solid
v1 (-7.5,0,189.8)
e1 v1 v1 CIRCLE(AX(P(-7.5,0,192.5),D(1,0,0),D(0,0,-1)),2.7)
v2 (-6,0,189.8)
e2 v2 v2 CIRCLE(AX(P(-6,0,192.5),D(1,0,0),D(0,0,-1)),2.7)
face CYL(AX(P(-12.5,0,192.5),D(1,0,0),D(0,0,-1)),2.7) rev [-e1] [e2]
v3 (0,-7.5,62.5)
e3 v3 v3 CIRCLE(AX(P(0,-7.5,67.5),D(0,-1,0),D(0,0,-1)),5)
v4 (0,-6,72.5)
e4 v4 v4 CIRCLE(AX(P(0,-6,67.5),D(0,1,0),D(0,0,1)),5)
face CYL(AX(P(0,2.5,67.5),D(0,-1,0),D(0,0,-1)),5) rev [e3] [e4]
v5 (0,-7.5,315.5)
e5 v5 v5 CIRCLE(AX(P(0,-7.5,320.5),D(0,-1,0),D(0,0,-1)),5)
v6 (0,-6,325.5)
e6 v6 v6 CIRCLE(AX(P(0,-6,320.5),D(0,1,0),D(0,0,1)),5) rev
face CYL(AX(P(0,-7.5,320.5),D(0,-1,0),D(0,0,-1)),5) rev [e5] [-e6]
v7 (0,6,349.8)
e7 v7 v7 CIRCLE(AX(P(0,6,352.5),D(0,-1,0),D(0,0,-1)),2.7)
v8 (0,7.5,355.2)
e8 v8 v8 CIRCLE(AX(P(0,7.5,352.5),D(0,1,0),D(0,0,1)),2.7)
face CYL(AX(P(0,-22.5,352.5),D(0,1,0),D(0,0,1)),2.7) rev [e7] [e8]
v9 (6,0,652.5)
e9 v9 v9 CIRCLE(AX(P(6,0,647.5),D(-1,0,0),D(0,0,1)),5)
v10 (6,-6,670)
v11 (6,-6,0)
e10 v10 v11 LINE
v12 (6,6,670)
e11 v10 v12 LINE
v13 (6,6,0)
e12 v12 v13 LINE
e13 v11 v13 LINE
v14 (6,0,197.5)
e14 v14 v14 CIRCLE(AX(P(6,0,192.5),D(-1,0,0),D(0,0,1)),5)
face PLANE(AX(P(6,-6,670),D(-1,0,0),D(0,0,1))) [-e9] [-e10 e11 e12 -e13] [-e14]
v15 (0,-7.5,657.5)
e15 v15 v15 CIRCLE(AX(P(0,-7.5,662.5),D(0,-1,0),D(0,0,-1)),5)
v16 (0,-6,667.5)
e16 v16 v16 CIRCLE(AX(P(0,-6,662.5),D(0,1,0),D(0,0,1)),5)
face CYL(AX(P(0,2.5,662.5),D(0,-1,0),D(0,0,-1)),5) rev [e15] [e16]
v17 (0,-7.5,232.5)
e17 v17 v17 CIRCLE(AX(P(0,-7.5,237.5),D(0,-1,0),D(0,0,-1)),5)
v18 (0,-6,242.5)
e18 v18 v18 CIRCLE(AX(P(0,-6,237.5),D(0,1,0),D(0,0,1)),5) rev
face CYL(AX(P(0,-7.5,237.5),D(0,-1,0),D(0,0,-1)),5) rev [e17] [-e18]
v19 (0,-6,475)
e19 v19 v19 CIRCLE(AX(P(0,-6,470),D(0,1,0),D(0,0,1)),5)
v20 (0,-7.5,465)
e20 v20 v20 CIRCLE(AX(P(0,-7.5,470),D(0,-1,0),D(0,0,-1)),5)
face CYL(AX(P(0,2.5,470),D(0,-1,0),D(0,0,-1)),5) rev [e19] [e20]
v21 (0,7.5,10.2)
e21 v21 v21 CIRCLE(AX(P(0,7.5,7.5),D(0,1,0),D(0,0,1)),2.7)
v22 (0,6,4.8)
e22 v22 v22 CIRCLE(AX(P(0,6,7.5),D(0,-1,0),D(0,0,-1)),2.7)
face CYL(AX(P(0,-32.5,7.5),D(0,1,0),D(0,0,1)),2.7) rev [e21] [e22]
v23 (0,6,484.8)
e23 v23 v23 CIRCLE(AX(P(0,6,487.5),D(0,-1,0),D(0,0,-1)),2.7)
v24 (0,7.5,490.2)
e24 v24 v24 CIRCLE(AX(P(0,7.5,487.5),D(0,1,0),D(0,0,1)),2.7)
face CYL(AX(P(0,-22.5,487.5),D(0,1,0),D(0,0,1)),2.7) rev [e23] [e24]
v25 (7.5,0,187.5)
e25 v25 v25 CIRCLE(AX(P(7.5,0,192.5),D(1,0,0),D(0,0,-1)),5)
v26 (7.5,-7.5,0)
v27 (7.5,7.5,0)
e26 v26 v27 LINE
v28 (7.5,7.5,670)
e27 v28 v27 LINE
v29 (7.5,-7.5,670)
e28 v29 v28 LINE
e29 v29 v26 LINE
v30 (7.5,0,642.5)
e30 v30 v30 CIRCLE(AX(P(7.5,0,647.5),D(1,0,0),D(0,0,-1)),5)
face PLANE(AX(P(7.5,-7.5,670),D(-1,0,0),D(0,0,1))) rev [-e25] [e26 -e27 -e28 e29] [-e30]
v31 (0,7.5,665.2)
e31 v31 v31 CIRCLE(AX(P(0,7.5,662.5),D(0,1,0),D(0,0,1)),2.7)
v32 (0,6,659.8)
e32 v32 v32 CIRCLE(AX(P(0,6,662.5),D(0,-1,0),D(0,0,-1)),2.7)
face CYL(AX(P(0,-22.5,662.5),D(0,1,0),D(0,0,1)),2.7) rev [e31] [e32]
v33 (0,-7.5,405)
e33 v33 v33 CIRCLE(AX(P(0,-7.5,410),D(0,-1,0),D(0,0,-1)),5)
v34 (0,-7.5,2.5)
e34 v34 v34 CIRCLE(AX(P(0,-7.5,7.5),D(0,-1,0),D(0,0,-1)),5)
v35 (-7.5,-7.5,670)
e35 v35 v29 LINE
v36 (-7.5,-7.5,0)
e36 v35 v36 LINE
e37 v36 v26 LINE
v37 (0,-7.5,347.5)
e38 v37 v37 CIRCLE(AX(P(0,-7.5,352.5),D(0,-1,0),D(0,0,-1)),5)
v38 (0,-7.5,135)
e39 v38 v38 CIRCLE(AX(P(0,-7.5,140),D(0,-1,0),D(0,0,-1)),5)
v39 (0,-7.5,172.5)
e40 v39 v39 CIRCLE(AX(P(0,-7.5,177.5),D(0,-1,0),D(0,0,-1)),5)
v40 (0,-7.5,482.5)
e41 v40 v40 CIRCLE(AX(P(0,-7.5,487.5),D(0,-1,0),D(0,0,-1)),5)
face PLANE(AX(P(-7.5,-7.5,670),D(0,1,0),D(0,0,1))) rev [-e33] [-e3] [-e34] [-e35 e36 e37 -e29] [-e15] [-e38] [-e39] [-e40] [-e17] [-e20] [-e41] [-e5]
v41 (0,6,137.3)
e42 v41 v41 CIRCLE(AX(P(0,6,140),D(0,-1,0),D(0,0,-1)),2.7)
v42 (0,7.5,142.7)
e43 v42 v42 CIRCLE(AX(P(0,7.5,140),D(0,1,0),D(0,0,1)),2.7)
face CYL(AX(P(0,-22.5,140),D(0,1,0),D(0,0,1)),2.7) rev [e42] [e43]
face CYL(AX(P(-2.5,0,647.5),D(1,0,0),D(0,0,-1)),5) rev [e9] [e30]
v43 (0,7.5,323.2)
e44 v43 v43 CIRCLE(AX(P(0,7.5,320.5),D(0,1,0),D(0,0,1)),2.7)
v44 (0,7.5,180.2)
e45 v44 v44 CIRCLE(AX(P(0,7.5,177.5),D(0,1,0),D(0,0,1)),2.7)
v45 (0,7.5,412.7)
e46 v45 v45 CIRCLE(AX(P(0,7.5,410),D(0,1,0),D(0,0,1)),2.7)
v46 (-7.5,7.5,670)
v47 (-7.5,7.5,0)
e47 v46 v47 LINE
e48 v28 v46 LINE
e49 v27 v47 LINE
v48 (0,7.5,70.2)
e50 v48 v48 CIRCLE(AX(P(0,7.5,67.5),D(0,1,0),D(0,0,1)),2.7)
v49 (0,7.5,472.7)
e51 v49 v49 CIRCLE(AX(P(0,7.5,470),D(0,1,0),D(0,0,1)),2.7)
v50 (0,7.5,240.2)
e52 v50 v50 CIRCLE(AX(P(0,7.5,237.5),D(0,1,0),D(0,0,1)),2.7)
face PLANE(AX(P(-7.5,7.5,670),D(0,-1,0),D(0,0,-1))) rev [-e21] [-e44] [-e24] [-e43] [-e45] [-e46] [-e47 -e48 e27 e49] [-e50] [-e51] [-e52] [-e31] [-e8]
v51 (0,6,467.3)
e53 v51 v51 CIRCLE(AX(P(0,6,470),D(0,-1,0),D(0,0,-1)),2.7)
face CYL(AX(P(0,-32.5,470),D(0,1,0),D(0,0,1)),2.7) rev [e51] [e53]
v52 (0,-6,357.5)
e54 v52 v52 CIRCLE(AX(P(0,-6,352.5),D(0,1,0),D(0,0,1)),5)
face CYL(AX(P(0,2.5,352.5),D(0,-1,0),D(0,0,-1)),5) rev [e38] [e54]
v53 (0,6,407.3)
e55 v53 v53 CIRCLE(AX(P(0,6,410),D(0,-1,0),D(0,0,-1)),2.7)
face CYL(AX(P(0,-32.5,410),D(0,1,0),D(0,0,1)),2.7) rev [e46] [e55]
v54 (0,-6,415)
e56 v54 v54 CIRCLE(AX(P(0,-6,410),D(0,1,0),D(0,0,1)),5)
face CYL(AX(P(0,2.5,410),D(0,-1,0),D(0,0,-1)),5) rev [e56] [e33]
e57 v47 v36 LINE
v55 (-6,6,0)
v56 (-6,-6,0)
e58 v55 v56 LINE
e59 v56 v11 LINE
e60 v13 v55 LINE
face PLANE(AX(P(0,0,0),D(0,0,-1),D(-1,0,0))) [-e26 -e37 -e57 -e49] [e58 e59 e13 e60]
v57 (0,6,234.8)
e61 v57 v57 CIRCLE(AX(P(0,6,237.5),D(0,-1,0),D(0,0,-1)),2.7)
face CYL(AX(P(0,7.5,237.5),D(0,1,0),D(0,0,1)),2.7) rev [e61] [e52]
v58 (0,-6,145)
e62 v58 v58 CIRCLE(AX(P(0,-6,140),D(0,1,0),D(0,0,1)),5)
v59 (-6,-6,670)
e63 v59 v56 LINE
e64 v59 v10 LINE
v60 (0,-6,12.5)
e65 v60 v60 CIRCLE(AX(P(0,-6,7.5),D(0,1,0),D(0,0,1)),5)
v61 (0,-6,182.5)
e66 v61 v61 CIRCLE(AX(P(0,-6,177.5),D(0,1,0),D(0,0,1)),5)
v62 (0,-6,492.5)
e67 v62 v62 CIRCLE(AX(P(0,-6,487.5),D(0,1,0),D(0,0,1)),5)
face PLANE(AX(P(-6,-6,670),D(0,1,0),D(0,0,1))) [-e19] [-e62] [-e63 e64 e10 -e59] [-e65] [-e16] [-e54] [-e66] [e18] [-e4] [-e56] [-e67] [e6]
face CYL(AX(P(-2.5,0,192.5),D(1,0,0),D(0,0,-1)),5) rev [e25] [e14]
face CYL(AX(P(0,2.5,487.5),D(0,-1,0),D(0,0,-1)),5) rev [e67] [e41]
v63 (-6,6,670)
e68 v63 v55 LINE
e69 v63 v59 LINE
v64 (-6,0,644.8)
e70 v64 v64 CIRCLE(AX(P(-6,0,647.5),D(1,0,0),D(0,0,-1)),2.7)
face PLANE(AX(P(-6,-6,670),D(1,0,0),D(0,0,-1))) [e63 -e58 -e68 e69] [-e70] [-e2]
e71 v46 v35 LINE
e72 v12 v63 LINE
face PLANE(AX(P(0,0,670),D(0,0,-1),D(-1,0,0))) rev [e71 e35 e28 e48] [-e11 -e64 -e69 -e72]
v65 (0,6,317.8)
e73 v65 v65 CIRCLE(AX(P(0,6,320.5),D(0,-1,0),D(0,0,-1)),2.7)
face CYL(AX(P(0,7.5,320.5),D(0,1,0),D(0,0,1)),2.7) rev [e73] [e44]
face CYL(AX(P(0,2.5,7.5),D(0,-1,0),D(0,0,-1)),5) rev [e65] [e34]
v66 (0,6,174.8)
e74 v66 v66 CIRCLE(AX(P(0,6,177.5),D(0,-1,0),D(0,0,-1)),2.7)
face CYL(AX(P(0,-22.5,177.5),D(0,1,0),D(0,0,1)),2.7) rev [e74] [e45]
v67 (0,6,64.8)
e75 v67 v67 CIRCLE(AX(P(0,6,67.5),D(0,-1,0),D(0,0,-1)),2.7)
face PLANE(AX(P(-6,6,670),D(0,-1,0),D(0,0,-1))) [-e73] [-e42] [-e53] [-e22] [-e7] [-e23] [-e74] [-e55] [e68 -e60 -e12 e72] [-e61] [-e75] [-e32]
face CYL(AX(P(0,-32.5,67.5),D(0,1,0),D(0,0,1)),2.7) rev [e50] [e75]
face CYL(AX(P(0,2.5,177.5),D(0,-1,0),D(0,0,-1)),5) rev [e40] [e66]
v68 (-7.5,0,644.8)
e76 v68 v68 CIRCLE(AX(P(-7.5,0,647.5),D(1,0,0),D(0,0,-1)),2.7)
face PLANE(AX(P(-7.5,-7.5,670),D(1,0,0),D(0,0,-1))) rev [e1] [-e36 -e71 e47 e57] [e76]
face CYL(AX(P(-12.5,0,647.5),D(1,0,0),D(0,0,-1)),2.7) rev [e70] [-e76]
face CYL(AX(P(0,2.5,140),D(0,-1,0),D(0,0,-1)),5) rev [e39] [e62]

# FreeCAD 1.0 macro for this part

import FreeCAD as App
import Part
import Sketcher
from FreeCAD import Vector


def add_polygon(sketch, points):
    """Adds a closed chain of lines whose ends are joined by coincident constraints."""
    first, n = sketch.GeometryCount, len(points)
    for a, b in zip(points, points[1:] + points[:1]):
        sketch.addGeometry(Part.LineSegment(App.Vector(*a, 0), App.Vector(*b, 0)), False)
    for i in range(n):
        sketch.addConstraint(Sketcher.Constraint("Coincident", first + i, 2, first + (i + 1) % n, 1))

doc = App.newDocument("Part")
params = doc.addObject("Spreadsheet::Sheet", "Params")
for row, (alias, value) in enumerate([
    ("sketch1_width", "15 mm"),
    ("sketch1_width2", "12 mm"),
    ("pad1_length", "670 mm"),
    ("sketch2_diameter", "5.4 mm"),
    ("pocket1_length", "20 mm"),
    ("sketch3_diameter", "5.4 mm"),
    ("pocket2_length", "30 mm"),
    ("sketch4_diameter", "5.4 mm"),
    ("pocket3_length", "40 mm"),
    ("sketch5_diameter", "10 mm"),
    ("pocket4_length", "10 mm"),
    ("sketch6_diameter", "10 mm"),
    ("pocket5_length", "10 mm"),
    ("sketch7_diameter", "5.4 mm"),
    ("hole_diameter", "5.4 mm"),
    ("sketch8_diameter", "10 mm"),
    ("hole2_diameter", "10 mm"),
    ("hole2_depth", "1.5 mm"),
], start=1):
    params.set(f"A{row}", alias)
    params.set(f"B{row}", "=" + value)
    params.setAlias(f"B{row}", alias)

body = doc.addObject("PartDesign::Body", "Body")

# Sketch on XY plane
sketch1 = body.newObject("Sketcher::SketchObject", "Sketch")
sketch1.AttachmentSupport = (doc.getObject("XY_Plane"), [""])
sketch1.MapMode = "FlatFace"
add_polygon(sketch1, [(-7.5, 7.5), (-7.5, -7.5), (7.5, -7.5), (7.5, 7.5)])  # lines 0-3
add_polygon(sketch1, [(6, -6), (-6, -6), (-6, 6), (6, 6)])  # lines 4-7
sketch1.addConstraint([
    Sketcher.Constraint("Vertical", 0),
    Sketcher.Constraint("Horizontal", 1),
    Sketcher.Constraint("Vertical", 2),
    Sketcher.Constraint("Horizontal", 3),
    Sketcher.Constraint("Horizontal", 4),
    Sketcher.Constraint("Vertical", 5),
    Sketcher.Constraint("Horizontal", 6),
    Sketcher.Constraint("Vertical", 7),
    Sketcher.Constraint("Symmetric", 0, 2, 2, 2, -1, 1),
    Sketcher.Constraint("Symmetric", 4, 2, 6, 2, -1, 1),
    Sketcher.Constraint("Equal", 3, 0),
    Sketcher.Constraint("Equal", 6, 5),
    Sketcher.Constraint("DistanceX", 1, 1, 1, 2, 15.0),
    Sketcher.Constraint("DistanceX", 4, 2, 4, 1, 12.0),
])
sketch1.setExpression("Constraints[20]", "Params.sketch1_width")
sketch1.setExpression("Constraints[21]", "Params.sketch1_width2")
pad1 = body.newObject("PartDesign::Pad", "Pad")
pad1.Profile = sketch1
pad1.setExpression("Length", "Params.pad1_length")

# Sketch on YZ plane
sketch2 = body.newObject("Sketcher::SketchObject", "Sketch001")
sketch2.AttachmentSupport = (doc.getObject("YZ_Plane"), [""])
sketch2.MapMode = "FlatFace"
sketch2.AttachmentOffset = App.Placement(Vector(0, 0, 7.5), App.Rotation())
sketch2.addGeometry([
    Part.Circle(Vector(0, 647.5, 0), Vector(0, 0, 1), 2.7),
    Part.Circle(Vector(0, 192.5, 0), Vector(0, 0, 1), 2.7),
], False)
sketch2.addConstraint([
    Sketcher.Constraint("Equal", 0, 1),
    Sketcher.Constraint("PointOnObject", 0, 3, -2),
    Sketcher.Constraint("PointOnObject", 1, 3, -2),
    Sketcher.Constraint("Diameter", 0, 5.4),
    Sketcher.Constraint("DistanceY", 1, 3, 0, 3, 455.0),
    Sketcher.Constraint("DistanceY", -1, 1, 0, 3, 647.5),
])
sketch2.setExpression("Constraints[3]", "Params.sketch2_diameter")
pocket1 = body.newObject("PartDesign::Pocket", "Pocket")
pocket1.Profile = sketch2
pocket1.setExpression("Length", "Params.pocket1_length")

# Sketch on XZ plane
sketch3 = body.newObject("Sketcher::SketchObject", "Sketch002")
sketch3.AttachmentSupport = (doc.getObject("XZ_Plane"), [""])
sketch3.MapMode = "FlatFace"
sketch3.AttachmentOffset = App.Placement(Vector(0, 0, -7.5), App.Rotation())
sketch3.addGeometry([
    Part.Circle(Vector(0, 177.5, 0), Vector(0, 0, 1), 2.7),  # 0
    Part.Circle(Vector(0, 487.5, 0), Vector(0, 0, 1), 2.7),  # 1
    Part.Circle(Vector(0, 352.5, 0), Vector(0, 0, 1), 2.7),  # 2
    Part.Circle(Vector(0, 662.5, 0), Vector(0, 0, 1), 2.7),  # 3
    Part.Circle(Vector(0, 140, 0), Vector(0, 0, 1), 2.7),  # 4
], False)
sketch3.addConstraint([
    Sketcher.Constraint("Equal", 0, 1),
    Sketcher.Constraint("Equal", 1, 2),
    Sketcher.Constraint("Equal", 2, 3),
    Sketcher.Constraint("Equal", 3, 4),
    Sketcher.Constraint("PointOnObject", 0, 3, -2),
    Sketcher.Constraint("PointOnObject", 1, 3, -2),
    Sketcher.Constraint("PointOnObject", 2, 3, -2),
    Sketcher.Constraint("PointOnObject", 3, 3, -2),
    Sketcher.Constraint("PointOnObject", 4, 3, -2),
    Sketcher.Constraint("Diameter", 0, 5.4),
    Sketcher.Constraint("DistanceY", -1, 1, 4, 3, 140.0),
    Sketcher.Constraint("DistanceY", 0, 3, 1, 3, 310.0),
    Sketcher.Constraint("DistanceY", 2, 3, 1, 3, 135.0),
    Sketcher.Constraint("DistanceY", 1, 3, 3, 3, 175.0),
    Sketcher.Constraint("DistanceY", -1, 1, 0, 3, 177.5),
])
sketch3.setExpression("Constraints[9]", "Params.sketch3_diameter")
pocket2 = body.newObject("PartDesign::Pocket", "Pocket001")
pocket2.Profile = sketch3
pocket2.setExpression("Length", "Params.pocket2_length")
pocket2.Reversed = True

# Sketch on XZ plane
sketch4 = body.newObject("Sketcher::SketchObject", "Sketch003")
sketch4.AttachmentSupport = (doc.getObject("XZ_Plane"), [""])
sketch4.MapMode = "FlatFace"
sketch4.AttachmentOffset = App.Placement(Vector(0, 0, -7.5), App.Rotation())
sketch4.addGeometry([
    Part.Circle(Vector(0, 7.5, 0), Vector(0, 0, 1), 2.7),
    Part.Circle(Vector(0, 67.5, 0), Vector(0, 0, 1), 2.7),
    Part.Circle(Vector(0, 410, 0), Vector(0, 0, 1), 2.7),
    Part.Circle(Vector(0, 470, 0), Vector(0, 0, 1), 2.7),
], False)
sketch4.addConstraint([
    Sketcher.Constraint("Equal", 0, 1),
    Sketcher.Constraint("Equal", 1, 2),
    Sketcher.Constraint("Equal", 2, 3),
    Sketcher.Constraint("PointOnObject", 0, 3, -2),
    Sketcher.Constraint("PointOnObject", 1, 3, -2),
    Sketcher.Constraint("PointOnObject", 2, 3, -2),
    Sketcher.Constraint("PointOnObject", 3, 3, -2),
    Sketcher.Constraint("Diameter", 0, 5.4),
    Sketcher.Constraint("DistanceY", -1, 1, 2, 3, 410.0),
    Sketcher.Constraint("DistanceY", -1, 1, 3, 3, 470.0),
    Sketcher.Constraint("DistanceY", 0, 3, 1, 3, 60.0),
    Sketcher.Constraint("DistanceY", -1, 1, 0, 3, 7.5),
])
sketch4.setExpression("Constraints[7]", "Params.sketch4_diameter")
pocket3 = body.newObject("PartDesign::Pocket", "Pocket002")
pocket3.Profile = sketch4
pocket3.setExpression("Length", "Params.pocket3_length")
pocket3.Reversed = True

# Sketch on XZ plane
sketch5 = body.newObject("Sketcher::SketchObject", "Sketch004")
sketch5.AttachmentSupport = (doc.getObject("XZ_Plane"), [""])
sketch5.MapMode = "FlatFace"
sketch5.AttachmentOffset = App.Placement(Vector(0, 0, 7.5), App.Rotation())
sketch5.addGeometry([
    Part.Circle(Vector(0, 662.5, 0), Vector(0, 0, 1), 5),  # 0
    Part.Circle(Vector(0, 177.5, 0), Vector(0, 0, 1), 5),  # 1
    Part.Circle(Vector(0, 352.5, 0), Vector(0, 0, 1), 5),  # 2
    Part.Circle(Vector(0, 487.5, 0), Vector(0, 0, 1), 5),  # 3
    Part.Circle(Vector(0, 470, 0), Vector(0, 0, 1), 5),  # 4
    Part.Circle(Vector(0, 410, 0), Vector(0, 0, 1), 5),  # 5
    Part.Circle(Vector(0, 67.5, 0), Vector(0, 0, 1), 5),  # 6
    Part.Circle(Vector(0, 7.5, 0), Vector(0, 0, 1), 5),  # 7
    Part.Circle(Vector(0, 140, 0), Vector(0, 0, 1), 5),  # 8
], False)
sketch5.addConstraint([
    Sketcher.Constraint("Equal", 0, 1),
    Sketcher.Constraint("Equal", 1, 2),
    Sketcher.Constraint("Equal", 2, 3),
    Sketcher.Constraint("Equal", 3, 4),
    Sketcher.Constraint("Equal", 4, 5),
    Sketcher.Constraint("Equal", 5, 6),
    Sketcher.Constraint("Equal", 6, 7),
    Sketcher.Constraint("Equal", 7, 8),
    Sketcher.Constraint("PointOnObject", 0, 3, -2),
    Sketcher.Constraint("PointOnObject", 1, 3, -2),
    Sketcher.Constraint("PointOnObject", 2, 3, -2),
    Sketcher.Constraint("PointOnObject", 3, 3, -2),
    Sketcher.Constraint("PointOnObject", 4, 3, -2),
    Sketcher.Constraint("PointOnObject", 5, 3, -2),
    Sketcher.Constraint("PointOnObject", 6, 3, -2),
    Sketcher.Constraint("PointOnObject", 7, 3, -2),
    Sketcher.Constraint("PointOnObject", 8, 3, -2),
    Sketcher.Constraint("Diameter", 0, 10.0),
    Sketcher.Constraint("DistanceY", -1, 1, 4, 3, 470.0),
    Sketcher.Constraint("DistanceY", -1, 1, 5, 3, 410.0),
    Sketcher.Constraint("DistanceY", -1, 1, 8, 3, 140.0),
    Sketcher.Constraint("DistanceY", 1, 3, 0, 3, 485.0),
    Sketcher.Constraint("DistanceY", 1, 3, 2, 3, 175.0),
    Sketcher.Constraint("DistanceY", 2, 3, 3, 3, 135.0),
    Sketcher.Constraint("DistanceY", 6, 3, 1, 3, 110.0),
    Sketcher.Constraint("DistanceY", 7, 3, 6, 3, 60.0),
    Sketcher.Constraint("DistanceY", -1, 1, 0, 3, 662.5),
])
sketch5.setExpression("Constraints[17]", "Params.sketch5_diameter")
pocket4 = body.newObject("PartDesign::Pocket", "Pocket003")
pocket4.Profile = sketch5
pocket4.setExpression("Length", "Params.pocket4_length")

# Sketch on YZ plane
sketch6 = body.newObject("Sketcher::SketchObject", "Sketch005")
sketch6.AttachmentSupport = (doc.getObject("YZ_Plane"), [""])
sketch6.MapMode = "FlatFace"
sketch6.AttachmentOffset = App.Placement(Vector(0, 0, 7.5), App.Rotation())
sketch6.addGeometry([
    Part.Circle(Vector(0, 647.5, 0), Vector(0, 0, 1), 5),
    Part.Circle(Vector(0, 192.5, 0), Vector(0, 0, 1), 5),
], False)
sketch6.addConstraint([
    Sketcher.Constraint("Equal", 0, 1),
    Sketcher.Constraint("PointOnObject", 0, 3, -2),
    Sketcher.Constraint("PointOnObject", 1, 3, -2),
    Sketcher.Constraint("Diameter", 0, 10.0),
    Sketcher.Constraint("DistanceY", 1, 3, 0, 3, 455.0),
    Sketcher.Constraint("DistanceY", -1, 1, 0, 3, 647.5),
])
sketch6.setExpression("Constraints[3]", "Params.sketch6_diameter")
pocket5 = body.newObject("PartDesign::Pocket", "Pocket004")
pocket5.Profile = sketch6
pocket5.setExpression("Length", "Params.pocket5_length")

# Sketch on XZ plane
sketch7 = body.newObject("Sketcher::SketchObject", "Sketch006")
sketch7.AttachmentSupport = (doc.getObject("XZ_Plane"), [""])
sketch7.MapMode = "FlatFace"
sketch7.AttachmentOffset = App.Placement(Vector(0, 0, -7.5), App.Rotation())
sketch7.addGeometry([
    Part.Circle(Vector(0, 237.5, 0), Vector(0, 0, 1), 2.7),
    Part.Circle(Vector(0, 320.5, 0), Vector(0, 0, 1), 2.7),
], False)
sketch7.addConstraint([
    Sketcher.Constraint("Equal", 0, 1),
    Sketcher.Constraint("PointOnObject", 0, 3, -2),
    Sketcher.Constraint("PointOnObject", 1, 3, -2),
    Sketcher.Constraint("Diameter", 0, 5.4),
    Sketcher.Constraint("DistanceY", 0, 3, 1, 3, 83.0),
    Sketcher.Constraint("DistanceY", -1, 1, 0, 3, 237.5),
])
sketch7.setExpression("Constraints[3]", "Params.sketch7_diameter")
doc.recompute()
hole = body.newObject("PartDesign::Hole", "Hole")
hole.Profile = sketch7
hole.ThreadType = "None"
hole.setExpression("Diameter", "Params.hole_diameter")
hole.DepthType = "ThroughAll"
hole.Reversed = True

# Sketch on XZ plane
sketch8 = body.newObject("Sketcher::SketchObject", "Sketch007")
sketch8.AttachmentSupport = (doc.getObject("XZ_Plane"), [""])
sketch8.MapMode = "FlatFace"
sketch8.AttachmentOffset = App.Placement(Vector(0, 0, 7.5), App.Rotation())
sketch8.addGeometry([
    Part.Circle(Vector(0, 237.5, 0), Vector(0, 0, 1), 5),
    Part.Circle(Vector(0, 320.5, 0), Vector(0, 0, 1), 5),
], False)
sketch8.addConstraint([
    Sketcher.Constraint("Equal", 0, 1),
    Sketcher.Constraint("PointOnObject", 0, 3, -2),
    Sketcher.Constraint("PointOnObject", 1, 3, -2),
    Sketcher.Constraint("Diameter", 0, 10.0),
    Sketcher.Constraint("DistanceY", 0, 3, 1, 3, 83.0),
    Sketcher.Constraint("DistanceY", -1, 1, 0, 3, 237.5),
])
sketch8.setExpression("Constraints[3]", "Params.sketch8_diameter")
doc.recompute()
hole2 = body.newObject("PartDesign::Hole", "Hole001")
hole2.Profile = sketch8
hole2.ThreadType = "None"
hole2.setExpression("Diameter", "Params.hole2_diameter")
hole2.DepthType = "Dimension"
hole2.setExpression("Depth", "Params.hole2_depth")
hole2.DrillPoint = "Angled"
hole2.DrillPointAngle = 118

doc.recompute()
